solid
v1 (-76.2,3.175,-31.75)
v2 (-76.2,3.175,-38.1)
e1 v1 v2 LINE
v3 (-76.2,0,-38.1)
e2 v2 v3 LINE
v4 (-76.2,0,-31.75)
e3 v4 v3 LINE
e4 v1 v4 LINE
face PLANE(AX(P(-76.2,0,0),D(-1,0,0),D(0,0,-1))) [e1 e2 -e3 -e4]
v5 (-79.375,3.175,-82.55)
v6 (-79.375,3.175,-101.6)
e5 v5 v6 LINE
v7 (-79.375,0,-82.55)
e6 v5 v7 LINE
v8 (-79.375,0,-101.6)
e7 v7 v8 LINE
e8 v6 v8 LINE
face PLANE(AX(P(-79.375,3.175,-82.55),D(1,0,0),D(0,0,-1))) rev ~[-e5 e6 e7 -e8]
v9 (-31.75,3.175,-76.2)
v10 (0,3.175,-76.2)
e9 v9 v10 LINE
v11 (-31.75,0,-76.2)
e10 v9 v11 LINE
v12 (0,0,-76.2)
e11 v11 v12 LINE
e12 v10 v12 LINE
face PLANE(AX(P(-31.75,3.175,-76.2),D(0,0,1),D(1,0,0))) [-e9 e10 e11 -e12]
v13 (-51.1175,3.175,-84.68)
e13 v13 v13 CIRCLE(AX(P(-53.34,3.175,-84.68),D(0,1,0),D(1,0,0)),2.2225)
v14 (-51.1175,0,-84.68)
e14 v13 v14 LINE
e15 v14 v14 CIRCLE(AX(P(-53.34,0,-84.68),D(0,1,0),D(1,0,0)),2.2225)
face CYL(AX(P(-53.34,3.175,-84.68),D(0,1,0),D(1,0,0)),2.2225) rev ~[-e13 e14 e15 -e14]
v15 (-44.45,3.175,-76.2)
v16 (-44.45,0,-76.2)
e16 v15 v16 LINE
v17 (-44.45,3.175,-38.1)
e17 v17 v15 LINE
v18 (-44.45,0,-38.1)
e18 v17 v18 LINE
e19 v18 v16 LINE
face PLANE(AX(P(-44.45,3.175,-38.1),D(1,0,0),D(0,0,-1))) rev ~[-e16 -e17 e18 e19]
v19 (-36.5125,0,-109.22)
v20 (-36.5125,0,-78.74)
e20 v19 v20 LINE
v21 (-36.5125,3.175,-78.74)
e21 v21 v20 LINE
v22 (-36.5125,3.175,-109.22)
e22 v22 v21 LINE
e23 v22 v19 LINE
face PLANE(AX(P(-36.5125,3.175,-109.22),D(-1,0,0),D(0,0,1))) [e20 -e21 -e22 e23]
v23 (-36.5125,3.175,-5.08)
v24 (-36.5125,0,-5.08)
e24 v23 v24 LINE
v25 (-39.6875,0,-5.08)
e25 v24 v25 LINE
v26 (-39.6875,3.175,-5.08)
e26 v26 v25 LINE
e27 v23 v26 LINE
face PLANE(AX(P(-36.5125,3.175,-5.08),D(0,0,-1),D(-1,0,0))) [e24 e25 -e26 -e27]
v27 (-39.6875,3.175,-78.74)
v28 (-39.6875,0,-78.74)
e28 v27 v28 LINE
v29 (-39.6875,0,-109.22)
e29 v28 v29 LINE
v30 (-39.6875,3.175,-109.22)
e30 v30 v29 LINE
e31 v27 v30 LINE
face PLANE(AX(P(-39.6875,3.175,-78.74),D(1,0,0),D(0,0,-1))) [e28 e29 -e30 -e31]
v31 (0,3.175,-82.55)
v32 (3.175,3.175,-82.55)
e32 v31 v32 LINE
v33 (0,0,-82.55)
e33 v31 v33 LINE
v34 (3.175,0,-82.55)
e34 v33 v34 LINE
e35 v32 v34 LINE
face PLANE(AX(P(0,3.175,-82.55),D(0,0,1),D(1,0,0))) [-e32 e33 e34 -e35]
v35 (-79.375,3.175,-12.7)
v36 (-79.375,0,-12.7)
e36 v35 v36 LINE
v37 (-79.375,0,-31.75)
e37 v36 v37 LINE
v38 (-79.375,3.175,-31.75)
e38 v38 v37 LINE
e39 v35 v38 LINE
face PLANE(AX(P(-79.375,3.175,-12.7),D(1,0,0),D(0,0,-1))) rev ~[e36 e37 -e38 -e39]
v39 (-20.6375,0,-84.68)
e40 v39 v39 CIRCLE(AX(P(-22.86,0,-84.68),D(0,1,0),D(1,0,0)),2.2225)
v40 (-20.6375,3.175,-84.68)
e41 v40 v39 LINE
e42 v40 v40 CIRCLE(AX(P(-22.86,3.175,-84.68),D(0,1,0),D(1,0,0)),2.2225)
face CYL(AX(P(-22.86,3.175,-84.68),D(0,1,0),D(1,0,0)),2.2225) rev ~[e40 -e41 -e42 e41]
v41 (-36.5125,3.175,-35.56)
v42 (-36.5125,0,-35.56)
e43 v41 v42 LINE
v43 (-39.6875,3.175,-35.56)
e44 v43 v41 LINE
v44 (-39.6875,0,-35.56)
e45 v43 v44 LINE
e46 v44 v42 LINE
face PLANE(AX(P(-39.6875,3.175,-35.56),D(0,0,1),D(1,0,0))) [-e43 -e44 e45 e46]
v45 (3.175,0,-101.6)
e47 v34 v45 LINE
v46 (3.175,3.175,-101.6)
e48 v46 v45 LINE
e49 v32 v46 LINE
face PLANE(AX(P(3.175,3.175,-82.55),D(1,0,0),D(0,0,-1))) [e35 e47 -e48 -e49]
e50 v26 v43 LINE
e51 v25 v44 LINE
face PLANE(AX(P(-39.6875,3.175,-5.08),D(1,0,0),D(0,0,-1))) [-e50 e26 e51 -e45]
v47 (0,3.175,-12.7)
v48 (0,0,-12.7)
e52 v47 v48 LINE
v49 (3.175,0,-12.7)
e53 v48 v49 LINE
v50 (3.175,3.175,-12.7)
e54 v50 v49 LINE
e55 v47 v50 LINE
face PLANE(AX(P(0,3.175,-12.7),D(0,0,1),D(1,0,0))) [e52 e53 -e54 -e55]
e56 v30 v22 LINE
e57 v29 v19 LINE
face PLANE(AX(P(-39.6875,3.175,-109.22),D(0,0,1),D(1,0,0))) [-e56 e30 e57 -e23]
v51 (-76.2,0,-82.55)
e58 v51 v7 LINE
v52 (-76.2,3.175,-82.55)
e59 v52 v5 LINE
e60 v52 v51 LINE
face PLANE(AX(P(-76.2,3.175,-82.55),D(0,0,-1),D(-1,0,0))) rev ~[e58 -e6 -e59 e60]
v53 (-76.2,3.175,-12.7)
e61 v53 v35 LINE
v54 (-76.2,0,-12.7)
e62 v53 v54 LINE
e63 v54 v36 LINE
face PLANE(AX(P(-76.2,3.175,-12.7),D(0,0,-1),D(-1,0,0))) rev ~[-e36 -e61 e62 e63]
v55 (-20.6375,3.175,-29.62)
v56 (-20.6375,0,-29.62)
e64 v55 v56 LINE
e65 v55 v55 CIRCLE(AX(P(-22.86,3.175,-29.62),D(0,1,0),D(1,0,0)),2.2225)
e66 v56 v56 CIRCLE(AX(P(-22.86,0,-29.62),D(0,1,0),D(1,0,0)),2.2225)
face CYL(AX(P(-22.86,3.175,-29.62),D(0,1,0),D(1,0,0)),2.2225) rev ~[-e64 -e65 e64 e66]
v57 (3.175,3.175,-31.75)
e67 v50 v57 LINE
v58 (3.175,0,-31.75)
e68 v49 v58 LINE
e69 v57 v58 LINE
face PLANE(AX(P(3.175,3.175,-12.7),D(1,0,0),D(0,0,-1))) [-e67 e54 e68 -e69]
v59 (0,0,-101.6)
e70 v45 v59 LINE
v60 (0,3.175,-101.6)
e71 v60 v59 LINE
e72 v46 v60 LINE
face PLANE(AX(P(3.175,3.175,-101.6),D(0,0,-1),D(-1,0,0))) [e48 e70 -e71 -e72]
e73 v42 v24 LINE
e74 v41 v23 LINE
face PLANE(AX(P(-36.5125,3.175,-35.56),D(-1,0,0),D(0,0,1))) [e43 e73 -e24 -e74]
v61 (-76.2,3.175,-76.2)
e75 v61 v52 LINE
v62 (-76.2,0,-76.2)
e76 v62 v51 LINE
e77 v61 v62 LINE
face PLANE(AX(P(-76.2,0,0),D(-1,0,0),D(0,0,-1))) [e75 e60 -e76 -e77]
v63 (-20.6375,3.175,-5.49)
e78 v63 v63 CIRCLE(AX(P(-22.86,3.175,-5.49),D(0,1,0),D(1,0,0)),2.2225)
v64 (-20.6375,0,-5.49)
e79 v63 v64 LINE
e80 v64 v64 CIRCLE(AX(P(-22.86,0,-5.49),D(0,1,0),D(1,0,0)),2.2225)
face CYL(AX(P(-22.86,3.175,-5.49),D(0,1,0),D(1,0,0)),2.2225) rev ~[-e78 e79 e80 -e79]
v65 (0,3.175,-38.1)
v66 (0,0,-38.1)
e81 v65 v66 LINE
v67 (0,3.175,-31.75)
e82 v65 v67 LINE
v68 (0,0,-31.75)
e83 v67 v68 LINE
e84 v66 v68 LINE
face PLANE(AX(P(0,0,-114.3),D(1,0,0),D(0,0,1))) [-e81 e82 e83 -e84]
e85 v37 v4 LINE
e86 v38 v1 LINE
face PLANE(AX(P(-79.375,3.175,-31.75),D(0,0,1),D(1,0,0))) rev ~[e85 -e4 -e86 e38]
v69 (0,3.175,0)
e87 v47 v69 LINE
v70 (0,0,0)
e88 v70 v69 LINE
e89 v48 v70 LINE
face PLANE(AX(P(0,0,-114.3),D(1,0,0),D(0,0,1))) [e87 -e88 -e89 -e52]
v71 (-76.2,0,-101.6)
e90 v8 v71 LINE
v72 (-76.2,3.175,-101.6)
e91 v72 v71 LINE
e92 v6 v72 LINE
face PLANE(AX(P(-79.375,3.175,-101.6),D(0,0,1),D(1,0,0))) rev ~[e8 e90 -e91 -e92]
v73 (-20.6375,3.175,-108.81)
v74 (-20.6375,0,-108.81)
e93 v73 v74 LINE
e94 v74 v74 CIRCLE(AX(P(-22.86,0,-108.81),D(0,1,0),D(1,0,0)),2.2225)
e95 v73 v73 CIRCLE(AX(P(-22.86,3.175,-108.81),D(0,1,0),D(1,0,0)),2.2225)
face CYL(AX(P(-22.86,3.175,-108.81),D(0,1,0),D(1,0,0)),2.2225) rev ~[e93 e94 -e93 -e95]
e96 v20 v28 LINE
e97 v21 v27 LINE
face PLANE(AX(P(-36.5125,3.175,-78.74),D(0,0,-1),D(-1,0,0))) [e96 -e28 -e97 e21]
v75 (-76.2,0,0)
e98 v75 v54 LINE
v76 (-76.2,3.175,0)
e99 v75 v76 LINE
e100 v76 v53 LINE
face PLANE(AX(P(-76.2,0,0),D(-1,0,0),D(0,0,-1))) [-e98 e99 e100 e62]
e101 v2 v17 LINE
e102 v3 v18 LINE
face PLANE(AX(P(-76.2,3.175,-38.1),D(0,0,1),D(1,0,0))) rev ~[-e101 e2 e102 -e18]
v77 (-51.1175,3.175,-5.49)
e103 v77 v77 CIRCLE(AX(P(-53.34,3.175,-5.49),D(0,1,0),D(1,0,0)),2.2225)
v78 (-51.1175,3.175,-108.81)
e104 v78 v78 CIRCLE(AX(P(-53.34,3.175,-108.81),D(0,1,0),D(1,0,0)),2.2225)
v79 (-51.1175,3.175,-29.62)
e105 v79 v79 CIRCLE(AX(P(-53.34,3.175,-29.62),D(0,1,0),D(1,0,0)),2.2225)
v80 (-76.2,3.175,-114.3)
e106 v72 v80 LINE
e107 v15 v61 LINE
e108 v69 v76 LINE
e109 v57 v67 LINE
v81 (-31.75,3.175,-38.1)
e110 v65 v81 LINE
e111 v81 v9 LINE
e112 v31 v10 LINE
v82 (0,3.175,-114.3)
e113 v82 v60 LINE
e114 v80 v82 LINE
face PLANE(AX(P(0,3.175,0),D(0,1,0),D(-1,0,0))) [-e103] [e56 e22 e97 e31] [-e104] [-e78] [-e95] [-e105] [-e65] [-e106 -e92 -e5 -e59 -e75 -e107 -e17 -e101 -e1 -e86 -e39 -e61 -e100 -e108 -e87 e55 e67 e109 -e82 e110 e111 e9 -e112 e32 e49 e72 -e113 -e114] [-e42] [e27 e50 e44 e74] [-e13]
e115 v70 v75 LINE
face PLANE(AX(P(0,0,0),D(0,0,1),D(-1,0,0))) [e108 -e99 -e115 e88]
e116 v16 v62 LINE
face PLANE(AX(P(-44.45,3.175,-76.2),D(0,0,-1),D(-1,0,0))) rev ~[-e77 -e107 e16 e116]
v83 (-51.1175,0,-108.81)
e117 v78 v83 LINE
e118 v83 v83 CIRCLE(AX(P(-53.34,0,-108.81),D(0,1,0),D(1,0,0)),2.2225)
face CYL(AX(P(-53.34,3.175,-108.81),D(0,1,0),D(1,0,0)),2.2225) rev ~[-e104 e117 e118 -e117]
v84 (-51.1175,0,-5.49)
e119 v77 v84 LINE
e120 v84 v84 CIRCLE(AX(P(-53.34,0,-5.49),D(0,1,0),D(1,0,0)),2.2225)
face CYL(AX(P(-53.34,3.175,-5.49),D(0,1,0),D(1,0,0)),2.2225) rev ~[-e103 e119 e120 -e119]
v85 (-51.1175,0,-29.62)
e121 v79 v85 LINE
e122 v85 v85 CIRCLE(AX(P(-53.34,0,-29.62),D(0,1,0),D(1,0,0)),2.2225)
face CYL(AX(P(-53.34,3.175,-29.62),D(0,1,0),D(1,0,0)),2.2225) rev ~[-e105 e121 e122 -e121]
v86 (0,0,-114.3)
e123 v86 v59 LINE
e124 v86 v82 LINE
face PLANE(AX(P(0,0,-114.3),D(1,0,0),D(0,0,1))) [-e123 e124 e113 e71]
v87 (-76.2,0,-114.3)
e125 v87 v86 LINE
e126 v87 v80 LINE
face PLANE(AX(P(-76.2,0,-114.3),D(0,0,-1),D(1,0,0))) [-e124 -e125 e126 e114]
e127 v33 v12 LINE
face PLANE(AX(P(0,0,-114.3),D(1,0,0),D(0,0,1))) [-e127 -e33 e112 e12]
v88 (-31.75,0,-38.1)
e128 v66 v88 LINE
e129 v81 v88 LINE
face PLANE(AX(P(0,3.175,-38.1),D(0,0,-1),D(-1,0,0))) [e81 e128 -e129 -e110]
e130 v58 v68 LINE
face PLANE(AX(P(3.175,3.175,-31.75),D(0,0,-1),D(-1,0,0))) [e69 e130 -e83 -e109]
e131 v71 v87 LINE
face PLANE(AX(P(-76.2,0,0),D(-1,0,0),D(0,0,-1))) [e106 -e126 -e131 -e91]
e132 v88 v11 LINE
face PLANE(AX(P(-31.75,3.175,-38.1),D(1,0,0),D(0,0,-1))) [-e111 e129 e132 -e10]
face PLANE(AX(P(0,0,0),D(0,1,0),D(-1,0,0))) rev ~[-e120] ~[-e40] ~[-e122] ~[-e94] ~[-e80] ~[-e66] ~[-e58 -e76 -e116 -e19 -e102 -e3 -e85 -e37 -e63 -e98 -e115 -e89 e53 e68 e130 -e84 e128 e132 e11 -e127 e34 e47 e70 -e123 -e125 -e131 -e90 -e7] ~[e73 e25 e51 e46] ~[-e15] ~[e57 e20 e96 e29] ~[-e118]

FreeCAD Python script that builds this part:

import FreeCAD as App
import Part
import Sketcher

V = App.Vector
Q = App.Units.Quantity


def add_polygon(sketch, points):
    """Adds a closed chain of lines whose ends are joined by coincident constraints."""
    first, n = sketch.GeometryCount, len(points)
    for a, b in zip(points, points[1:] + points[:1]):
        sketch.addGeometry(Part.LineSegment(App.Vector(*a, 0), App.Vector(*b, 0)), False)
    for i in range(n):
        sketch.addConstraint(Sketcher.Constraint("Coincident", first + i, 2, first + (i + 1) % n, 1))

doc = App.newDocument("Part")
body = doc.addObject("PartDesign::Body", "Body")

sketch1 = body.newObject("Sketcher::SketchObject", "Sketch")
sketch1.AttachmentSupport = (doc.getObject("XZ_Plane"), [""])
sketch1.MapMode = "FlatFace"
add_polygon(sketch1, [(-76.2, 0), (0, 0), (0, -114.3), (-76.2, -114.3)])
sketch1.addConstraint([
    Sketcher.Constraint("Horizontal", 0),
    Sketcher.Constraint("Vertical", 1),
    Sketcher.Constraint("Horizontal", 2),
    Sketcher.Constraint("Vertical", 3),
    Sketcher.Constraint("Coincident", 0, 2, -1, 1),
    Sketcher.Constraint("DistanceX", 0, 1, 0, 2, Q("3 in")),
    Sketcher.Constraint("DistanceY", 1, 2, 1, 1, Q("4.5 in")),
])
pad1 = body.newObject("PartDesign::Pad", "Pad")
pad1.Profile = sketch1
pad1.Length = Q("0.125 in")
pad1.Reversed = True

sketch2 = body.newObject("Sketcher::SketchObject", "Sketch001")
sketch2.AttachmentSupport = (doc.getObject("XZ_Plane"), [""])
sketch2.MapMode = "FlatFace"
sketch2.AttachmentOffset = App.Placement(V(0, 0, -0.125 * 25.4), App.Rotation())
add_polygon(sketch2, [(0, -31.75), (0, -12.7), (3.175, -12.7), (3.175, -31.75)])
add_polygon(sketch2, [(0, -101.6), (0, -82.55), (3.175, -82.55), (3.175, -101.6)])
add_polygon(sketch2, [(-79.375, -12.7), (-76.2, -12.7), (-76.2, -31.75), (-79.375, -31.75)])
add_polygon(sketch2, [(-76.2, -82.55), (-76.2, -101.6), (-79.375, -101.6), (-79.375, -82.55)])
sketch2.addConstraint([
    Sketcher.Constraint("Vertical", 0),
    Sketcher.Constraint("Horizontal", 1),
    Sketcher.Constraint("Vertical", 2),
    Sketcher.Constraint("Horizontal", 3),
    Sketcher.Constraint("Vertical", 4),
    Sketcher.Constraint("Horizontal", 5),
    Sketcher.Constraint("Vertical", 6),
    Sketcher.Constraint("Horizontal", 7),
    Sketcher.Constraint("Horizontal", 8),
    Sketcher.Constraint("Vertical", 9),
    Sketcher.Constraint("Horizontal", 10),
    Sketcher.Constraint("Vertical", 11),
    Sketcher.Constraint("Vertical", 12),
    Sketcher.Constraint("Horizontal", 13),
    Sketcher.Constraint("Vertical", 14),
    Sketcher.Constraint("Horizontal", 15),
    Sketcher.Constraint("PointOnObject", 0, 2, -2),
    Sketcher.Constraint("PointOnObject", 4, 2, -2),
    Sketcher.Constraint("Horizontal", 1, 2, 8, 2),
    Sketcher.Constraint("Horizontal", 3, 2, 9, 2),
    Sketcher.Constraint("Horizontal", 7, 2, 12, 2),
    Sketcher.Constraint("Horizontal", 5, 2, 14, 2),
    Sketcher.Constraint("Vertical", 2, 2, 5, 2),
    Sketcher.Constraint("Vertical", 9, 2, 12, 2),
    Sketcher.Constraint("Vertical", 11, 2, 13, 2),
    Sketcher.Constraint("Equal", 7, 8),
    Sketcher.Constraint("Equal", 2, 4),
    Sketcher.Constraint("DistanceY", 0, 1, 0, 2, Q("0.75 in")),
    Sketcher.Constraint("DistanceY", 0, 2, -1, 1, Q("0.5 in")),
    Sketcher.Constraint("DistanceX", 1, 1, 1, 2, Q("0.125 in")),
    Sketcher.Constraint("DistanceY", 6, 2, -1, 1, Q("4 in")),
    Sketcher.Constraint("DistanceX", 8, 2, -1, 1, Q("3 in")),
])
pad2 = body.newObject("PartDesign::Pad", "Pad001")
pad2.Profile = sketch2
pad2.Length = Q("0.125 in")

sketch3 = body.newObject("Sketcher::SketchObject", "Sketch002")
sketch3.AttachmentSupport = (doc.getObject("XZ_Plane"), [""])
sketch3.MapMode = "FlatFace"
sketch3.AttachmentOffset = App.Placement(V(0, 0, -0.125 * 25.4), App.Rotation())
add_polygon(sketch3, [(0, -38.1), (0, -76.2), (-31.75, -76.2), (-31.75, -38.1)])
add_polygon(sketch3, [(-44.45, -76.2), (-76.2, -76.2), (-76.2, -38.1), (-44.45, -38.1)])
sketch3.addConstraint([
    Sketcher.Constraint("Vertical", 0),
    Sketcher.Constraint("Horizontal", 1),
    Sketcher.Constraint("Vertical", 2),
    Sketcher.Constraint("Horizontal", 3),
    Sketcher.Constraint("Horizontal", 4),
    Sketcher.Constraint("Vertical", 5),
    Sketcher.Constraint("Horizontal", 6),
    Sketcher.Constraint("Vertical", 7),
    Sketcher.Constraint("PointOnObject", 0, 2, -2),
    Sketcher.Constraint("Horizontal", 1, 2, 4, 2),
    Sketcher.Constraint("Horizontal", 3, 2, 5, 2),
    Sketcher.Constraint("Equal", 3, 4),
    Sketcher.Constraint("DistanceX", 1, 2, 1, 1, Q("1.25 in")),
    Sketcher.Constraint("DistanceY", 0, 2, 0, 1, Q("1.5 in")),
    Sketcher.Constraint("DistanceY", 0, 2, -1, 1, Q("3 in")),
    Sketcher.Constraint("DistanceX", 4, 2, -1, 1, Q("3 in")),
])
pocket1 = body.newObject("PartDesign::Pocket", "Pocket")
pocket1.Profile = sketch3
pocket1.Length = Q("0.125 in")
pocket1.Reversed = True

sketch4 = body.newObject("Sketcher::SketchObject", "Sketch003")
sketch4.AttachmentSupport = (doc.getObject("XZ_Plane"), [""])
sketch4.MapMode = "FlatFace"
sketch4.AttachmentOffset = App.Placement(V(0, 0, -0.125 * 25.4), App.Rotation())
sketch4.addGeometry([
    Part.Circle(V(-22.86, -84.68, 0), V(0, 0, 1), 2.2225),
    Part.Circle(V(-22.86, -108.81, 0), V(0, 0, 1), 2.2225),
    Part.Circle(V(-53.34, -108.81, 0), V(0, 0, 1), 2.2225),
    Part.Circle(V(-53.34, -84.68, 0), V(0, 0, 1), 2.2225),
    Part.Circle(V(-22.86, -29.62, 0), V(0, 0, 1), 2.2225),
    Part.Circle(V(-22.86, -5.49, 0), V(0, 0, 1), 2.2225),
    Part.Circle(V(-53.34, -5.49, 0), V(0, 0, 1), 2.2225),
    Part.Circle(V(-53.34, -29.62, 0), V(0, 0, 1), 2.2225),
], False)
sketch4.addConstraint([
    Sketcher.Constraint("Equal", 0, 1),
    Sketcher.Constraint("Equal", 1, 2),
    Sketcher.Constraint("Equal", 2, 3),
    Sketcher.Constraint("Equal", 3, 4),
    Sketcher.Constraint("Equal", 4, 5),
    Sketcher.Constraint("Equal", 5, 6),
    Sketcher.Constraint("Equal", 6, 7),
    Sketcher.Constraint("Horizontal", 1, 3, 2, 3),
    Sketcher.Constraint("Horizontal", 0, 3, 3, 3),
    Sketcher.Constraint("Horizontal", 5, 3, 6, 3),
    Sketcher.Constraint("Horizontal", 4, 3, 7, 3),
    Sketcher.Constraint("Vertical", 0, 3, 1, 3),
    Sketcher.Constraint("Vertical", 2, 3, 3, 3),
    Sketcher.Constraint("Vertical", 1, 3, 4, 3),
    Sketcher.Constraint("Vertical", 4, 3, 5, 3),
    Sketcher.Constraint("Vertical", 3, 3, 6, 3),
    Sketcher.Constraint("Vertical", 6, 3, 7, 3),
    Sketcher.Constraint("Diameter", 0, Q("0.175 in")),
    Sketcher.Constraint("DistanceX", 0, 3, -1, 1, Q("0.9 in")),
    Sketcher.Constraint("DistanceX", 2, 3, 1, 3, Q("1.2 in")),
    Sketcher.Constraint("DistanceY", 1, 3, 0, 3, Q("0.95 in")),
    Sketcher.Constraint("DistanceY", 4, 3, 5, 3, Q("0.95 in")),
    Sketcher.Constraint("DistanceY", 0, 3, -1, 1, Q("84.68 mm")),
    Sketcher.Constraint("DistanceY", 4, 3, -1, 1, Q("29.62 mm")),
])
pocket2 = body.newObject("PartDesign::Pocket", "Pocket001")
pocket2.Profile = sketch4
pocket2.Length = Q("0.125 in")
pocket2.Reversed = True

sketch5 = body.newObject("Sketcher::SketchObject", "Sketch004")
sketch5.AttachmentSupport = (doc.getObject("XZ_Plane"), [""])
sketch5.MapMode = "FlatFace"
sketch5.AttachmentOffset = App.Placement(V(0, 0, -0.125 * 25.4), App.Rotation())
add_polygon(sketch5, [(-39.6875, -5.08), (-36.5125, -5.08), (-36.5125, -35.56), (-39.6875, -35.56)])
add_polygon(sketch5, [(-39.6875, -78.74), (-36.5125, -78.74), (-36.5125, -109.22), (-39.6875, -109.22)])
sketch5.addConstraint([
    Sketcher.Constraint("Horizontal", 0),
    Sketcher.Constraint("Vertical", 1),
    Sketcher.Constraint("Horizontal", 2),
    Sketcher.Constraint("Vertical", 3),
    Sketcher.Constraint("Horizontal", 4),
    Sketcher.Constraint("Vertical", 5),
    Sketcher.Constraint("Horizontal", 6),
    Sketcher.Constraint("Vertical", 7),
    Sketcher.Constraint("Vertical", 1, 2, 4, 2),
    Sketcher.Constraint("Vertical", 3, 2, 6, 2),
    Sketcher.Constraint("Equal", 3, 5),
    Sketcher.Constraint("DistanceY", 1, 2, 1, 1, Q("1.2 in")),
    Sketcher.Constraint("DistanceY", 0, 2, -1, 1, Q("0.2 in")),
    Sketcher.Constraint("DistanceX", 0, 1, 0, 2, Q("0.125 in")),
    Sketcher.Constraint("DistanceX", 0, 2, -1, 1, Q("1.4375 in")),
    Sketcher.Constraint("DistanceY", 4, 2, -1, 1, Q("3.1 in")),
])
pocket3 = body.newObject("PartDesign::Pocket", "Pocket002")
pocket3.Profile = sketch5
pocket3.Length = Q("0.125 in")
pocket3.Reversed = True

doc.recompute()
